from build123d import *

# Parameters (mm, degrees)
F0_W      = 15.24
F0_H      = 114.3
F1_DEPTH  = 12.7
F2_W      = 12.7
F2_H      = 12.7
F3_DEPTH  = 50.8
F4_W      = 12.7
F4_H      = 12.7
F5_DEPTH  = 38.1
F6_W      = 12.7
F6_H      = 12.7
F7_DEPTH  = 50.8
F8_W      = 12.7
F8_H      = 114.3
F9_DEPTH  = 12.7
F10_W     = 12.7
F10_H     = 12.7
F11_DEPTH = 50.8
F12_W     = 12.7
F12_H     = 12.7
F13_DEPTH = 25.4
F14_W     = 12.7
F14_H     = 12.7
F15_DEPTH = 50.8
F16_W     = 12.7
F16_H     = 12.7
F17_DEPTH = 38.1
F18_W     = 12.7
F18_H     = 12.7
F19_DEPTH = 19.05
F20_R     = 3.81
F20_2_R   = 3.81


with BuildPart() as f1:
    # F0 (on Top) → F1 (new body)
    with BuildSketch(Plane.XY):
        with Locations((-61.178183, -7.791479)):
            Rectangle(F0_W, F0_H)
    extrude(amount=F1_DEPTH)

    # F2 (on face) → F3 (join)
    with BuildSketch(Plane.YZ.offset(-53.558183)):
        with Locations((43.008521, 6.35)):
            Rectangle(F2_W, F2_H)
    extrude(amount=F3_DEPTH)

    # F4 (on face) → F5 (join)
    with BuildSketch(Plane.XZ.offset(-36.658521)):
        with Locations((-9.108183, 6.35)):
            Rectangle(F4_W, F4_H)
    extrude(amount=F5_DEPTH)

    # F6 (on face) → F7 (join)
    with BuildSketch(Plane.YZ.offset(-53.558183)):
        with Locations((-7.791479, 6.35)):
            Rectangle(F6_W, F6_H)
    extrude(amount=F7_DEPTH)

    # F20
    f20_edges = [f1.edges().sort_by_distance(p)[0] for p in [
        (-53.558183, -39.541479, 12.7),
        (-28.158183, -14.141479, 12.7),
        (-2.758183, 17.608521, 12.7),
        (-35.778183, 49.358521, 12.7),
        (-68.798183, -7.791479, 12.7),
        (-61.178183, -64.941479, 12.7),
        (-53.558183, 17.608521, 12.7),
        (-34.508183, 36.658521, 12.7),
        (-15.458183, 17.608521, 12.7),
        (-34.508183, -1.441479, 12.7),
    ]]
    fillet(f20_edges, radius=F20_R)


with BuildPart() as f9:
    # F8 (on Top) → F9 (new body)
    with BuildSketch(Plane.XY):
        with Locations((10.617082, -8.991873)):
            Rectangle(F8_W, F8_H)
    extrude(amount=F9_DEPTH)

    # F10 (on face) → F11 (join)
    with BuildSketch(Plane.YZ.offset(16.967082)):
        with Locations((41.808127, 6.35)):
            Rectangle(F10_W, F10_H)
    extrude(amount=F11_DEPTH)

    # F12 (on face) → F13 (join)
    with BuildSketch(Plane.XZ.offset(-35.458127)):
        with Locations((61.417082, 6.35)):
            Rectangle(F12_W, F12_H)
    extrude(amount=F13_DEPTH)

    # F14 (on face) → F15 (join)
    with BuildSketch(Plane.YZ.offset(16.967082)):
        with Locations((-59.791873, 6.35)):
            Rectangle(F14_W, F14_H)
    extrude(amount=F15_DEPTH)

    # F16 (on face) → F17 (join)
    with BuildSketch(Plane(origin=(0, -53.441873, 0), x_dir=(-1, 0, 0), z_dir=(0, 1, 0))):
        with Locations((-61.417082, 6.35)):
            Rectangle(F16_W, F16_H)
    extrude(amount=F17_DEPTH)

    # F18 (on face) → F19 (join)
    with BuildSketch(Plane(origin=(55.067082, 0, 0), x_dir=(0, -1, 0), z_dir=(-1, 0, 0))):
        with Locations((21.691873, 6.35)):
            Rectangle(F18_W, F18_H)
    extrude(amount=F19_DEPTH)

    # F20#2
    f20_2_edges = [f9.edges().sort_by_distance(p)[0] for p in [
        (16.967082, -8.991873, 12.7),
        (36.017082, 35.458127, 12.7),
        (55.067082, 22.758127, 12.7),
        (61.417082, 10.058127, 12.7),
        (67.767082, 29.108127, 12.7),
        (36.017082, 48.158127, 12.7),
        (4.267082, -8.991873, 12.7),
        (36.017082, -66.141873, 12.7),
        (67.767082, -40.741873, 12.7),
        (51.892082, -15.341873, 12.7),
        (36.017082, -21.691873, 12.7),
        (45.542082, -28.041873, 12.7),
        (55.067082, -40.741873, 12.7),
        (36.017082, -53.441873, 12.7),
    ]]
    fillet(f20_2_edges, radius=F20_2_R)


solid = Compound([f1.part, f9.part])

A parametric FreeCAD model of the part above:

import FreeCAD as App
import Part
import Sketcher
Q = App.Units.Quantity


def edges_at(feature, points):
    """Names of the edges that pass closest to the given points."""
    edges = feature.Shape.Edges
    near = lambda p: min(range(len(edges)), key=lambda i: edges[i].distToShape(Part.Vertex(*p))[0])
    return sorted({f"Edge{near(p) + 1}" for p in points})

doc = App.newDocument("Part")
body = doc.addObject("PartDesign::Body", "Body")

sketch1 = body.newObject("Sketcher::SketchObject", "Sketch")
sketch1.AttachmentSupport = (doc.getObject("XY_Plane"), [""])
sketch1.MapMode = "FlatFace"
sketch1.addGeometry(Part.LineSegment(App.Vector(-68.798183, 49.358521, 0), App.Vector(-68.798183, -64.941479, 0)), False)
sketch1.addGeometry(Part.LineSegment(App.Vector(-68.798183, -64.941479, 0), App.Vector(-53.558183, -64.941479, 0)), False)
sketch1.addGeometry(Part.LineSegment(App.Vector(-53.558183, -64.941479, 0), App.Vector(-53.558183, 49.358521, 0)), False)
sketch1.addGeometry(Part.LineSegment(App.Vector(-53.558183, 49.358521, 0), App.Vector(-68.798183, 49.358521, 0)), False)
sketch1.addConstraint(Sketcher.Constraint("Coincident", 0, 2, 1, 1))
sketch1.addConstraint(Sketcher.Constraint("Coincident", 1, 2, 2, 1))
sketch1.addConstraint(Sketcher.Constraint("Coincident", 2, 2, 3, 1))
sketch1.addConstraint(Sketcher.Constraint("Coincident", 3, 2, 0, 1))
sketch1.addConstraint(Sketcher.Constraint("Vertical", 0))
sketch1.addConstraint(Sketcher.Constraint("Horizontal", 1))
sketch1.addConstraint(Sketcher.Constraint("Vertical", 2))
sketch1.addConstraint(Sketcher.Constraint("Horizontal", 3))
sketch1.addConstraint(Sketcher.Constraint("DistanceX", 1, 1, 1, 2, Q("0.6 in")))
sketch1.addConstraint(Sketcher.Constraint("DistanceY", 0, 2, 0, 1, Q("4.5 in")))
sketch1.addConstraint(Sketcher.Constraint("DistanceY", 0, 2, -1, 1, 64.941479))
sketch1.addConstraint(Sketcher.Constraint("DistanceX", 0, 2, -1, 1, 68.798183))
pad1 = body.newObject("PartDesign::Pad", "Pad")
pad1.Profile = sketch1
pad1.Length = Q("0.5 in")

sketch2 = body.newObject("Sketcher::SketchObject", "Sketch001")
sketch2.AttachmentSupport = (doc.getObject("YZ_Plane"), [""])
sketch2.MapMode = "FlatFace"
sketch2.AttachmentOffset = App.Placement(App.Vector(0, 0, -53.558183), App.Rotation())
sketch2.addGeometry(Part.LineSegment(App.Vector(36.658521, 12.7, 0), App.Vector(36.658521, 0, 0)), False)
sketch2.addGeometry(Part.LineSegment(App.Vector(36.658521, 0, 0), App.Vector(49.358521, 0, 0)), False)
sketch2.addGeometry(Part.LineSegment(App.Vector(49.358521, 0, 0), App.Vector(49.358521, 12.7, 0)), False)
sketch2.addGeometry(Part.LineSegment(App.Vector(49.358521, 12.7, 0), App.Vector(36.658521, 12.7, 0)), False)
sketch2.addConstraint(Sketcher.Constraint("Coincident", 0, 2, 1, 1))
sketch2.addConstraint(Sketcher.Constraint("Coincident", 1, 2, 2, 1))
sketch2.addConstraint(Sketcher.Constraint("Coincident", 2, 2, 3, 1))
sketch2.addConstraint(Sketcher.Constraint("Coincident", 3, 2, 0, 1))
sketch2.addConstraint(Sketcher.Constraint("Vertical", 0))
sketch2.addConstraint(Sketcher.Constraint("Horizontal", 1))
sketch2.addConstraint(Sketcher.Constraint("Vertical", 2))
sketch2.addConstraint(Sketcher.Constraint("Horizontal", 3))
sketch2.addConstraint(Sketcher.Constraint("PointOnObject", 0, 2, -1))
sketch2.addConstraint(Sketcher.Constraint("Equal", 3, 0))
sketch2.addConstraint(Sketcher.Constraint("DistanceX", 1, 1, 1, 2, Q("0.5 in")))
sketch2.addConstraint(Sketcher.Constraint("DistanceX", -1, 1, 0, 2, 36.658521))
pad2 = body.newObject("PartDesign::Pad", "Pad001")
pad2.Profile = sketch2
pad2.Length = Q("2 in")

sketch3 = body.newObject("Sketcher::SketchObject", "Sketch002")
sketch3.AttachmentSupport = (doc.getObject("XZ_Plane"), [""])
sketch3.MapMode = "FlatFace"
sketch3.AttachmentOffset = App.Placement(App.Vector(0, 0, -36.658521), App.Rotation())
sketch3.addGeometry(Part.LineSegment(App.Vector(-15.458183, 12.7, 0), App.Vector(-15.458183, 0, 0)), False)
sketch3.addGeometry(Part.LineSegment(App.Vector(-15.458183, 0, 0), App.Vector(-2.758183, 0, 0)), False)
sketch3.addGeometry(Part.LineSegment(App.Vector(-2.758183, 0, 0), App.Vector(-2.758183, 12.7, 0)), False)
sketch3.addGeometry(Part.LineSegment(App.Vector(-2.758183, 12.7, 0), App.Vector(-15.458183, 12.7, 0)), False)
sketch3.addConstraint(Sketcher.Constraint("Coincident", 0, 2, 1, 1))
sketch3.addConstraint(Sketcher.Constraint("Coincident", 1, 2, 2, 1))
sketch3.addConstraint(Sketcher.Constraint("Coincident", 2, 2, 3, 1))
sketch3.addConstraint(Sketcher.Constraint("Coincident", 3, 2, 0, 1))
sketch3.addConstraint(Sketcher.Constraint("Vertical", 0))
sketch3.addConstraint(Sketcher.Constraint("Horizontal", 1))
sketch3.addConstraint(Sketcher.Constraint("Vertical", 2))
sketch3.addConstraint(Sketcher.Constraint("Horizontal", 3))
sketch3.addConstraint(Sketcher.Constraint("PointOnObject", 0, 2, -1))
sketch3.addConstraint(Sketcher.Constraint("Equal", 3, 0))
sketch3.addConstraint(Sketcher.Constraint("DistanceX", 1, 1, 1, 2, Q("0.5 in")))
sketch3.addConstraint(Sketcher.Constraint("DistanceX", 0, 2, -1, 1, 15.458183))
pad3 = body.newObject("PartDesign::Pad", "Pad002")
pad3.Profile = sketch3
pad3.Length = Q("1.5 in")

sketch4 = body.newObject("Sketcher::SketchObject", "Sketch003")
sketch4.AttachmentSupport = (doc.getObject("YZ_Plane"), [""])
sketch4.MapMode = "FlatFace"
sketch4.AttachmentOffset = App.Placement(App.Vector(0, 0, -53.558183), App.Rotation())
sketch4.addGeometry(Part.LineSegment(App.Vector(-14.141479, 12.7, 0), App.Vector(-14.141479, 0, 0)), False)
sketch4.addGeometry(Part.LineSegment(App.Vector(-14.141479, 0, 0), App.Vector(-1.441479, 0, 0)), False)
sketch4.addGeometry(Part.LineSegment(App.Vector(-1.441479, 0, 0), App.Vector(-1.441479, 12.7, 0)), False)
sketch4.addGeometry(Part.LineSegment(App.Vector(-1.441479, 12.7, 0), App.Vector(-14.141479, 12.7, 0)), False)
sketch4.addConstraint(Sketcher.Constraint("Coincident", 0, 2, 1, 1))
sketch4.addConstraint(Sketcher.Constraint("Coincident", 1, 2, 2, 1))
sketch4.addConstraint(Sketcher.Constraint("Coincident", 2, 2, 3, 1))
sketch4.addConstraint(Sketcher.Constraint("Coincident", 3, 2, 0, 1))
sketch4.addConstraint(Sketcher.Constraint("Vertical", 0))
sketch4.addConstraint(Sketcher.Constraint("Horizontal", 1))
sketch4.addConstraint(Sketcher.Constraint("Vertical", 2))
sketch4.addConstraint(Sketcher.Constraint("Horizontal", 3))
sketch4.addConstraint(Sketcher.Constraint("PointOnObject", 0, 2, -1))
sketch4.addConstraint(Sketcher.Constraint("Equal", 3, 0))
sketch4.addConstraint(Sketcher.Constraint("DistanceX", 1, 1, 1, 2, Q("0.5 in")))
sketch4.addConstraint(Sketcher.Constraint("DistanceX", 0, 2, -1, 1, 14.141479))
pad4 = body.newObject("PartDesign::Pad", "Pad003")
pad4.Profile = sketch4
pad4.Length = Q("2 in")
doc.recompute()

fillet = body.newObject("PartDesign::Fillet", "Fillet")
fillet.Base = (pad4, edges_at(pad4, [
    (-53.558, -39.541, 12.7),
    (-28.158, -14.141, 12.7),
    (-2.758, 17.609, 12.7),
    (-35.778, 49.359, 12.7),
    (-68.798, -7.791, 12.7),
    (-61.178, -64.941, 12.7),
    (-53.558, 17.609, 12.7),
    (-34.508, 36.659, 12.7),
    (-15.458, 17.609, 12.7),
    (-34.508, -1.441, 12.7),
]))
fillet.Radius = Q("0.15 in")
body2 = doc.addObject("PartDesign::Body", "Body001")

sketch5 = body2.newObject("Sketcher::SketchObject", "Sketch004")
sketch5.AttachmentSupport = (doc.getObject("XY_Plane001"), [""])
sketch5.MapMode = "FlatFace"
sketch5.addGeometry(Part.LineSegment(App.Vector(4.267082, 48.158127, 0), App.Vector(4.267082, -66.141873, 0)), False)
sketch5.addGeometry(Part.LineSegment(App.Vector(4.267082, -66.141873, 0), App.Vector(16.967082, -66.141873, 0)), False)
sketch5.addGeometry(Part.LineSegment(App.Vector(16.967082, -66.141873, 0), App.Vector(16.967082, 48.158127, 0)), False)
sketch5.addGeometry(Part.LineSegment(App.Vector(16.967082, 48.158127, 0), App.Vector(4.267082, 48.158127, 0)), False)
sketch5.addConstraint(Sketcher.Constraint("Coincident", 0, 2, 1, 1))
sketch5.addConstraint(Sketcher.Constraint("Coincident", 1, 2, 2, 1))
sketch5.addConstraint(Sketcher.Constraint("Coincident", 2, 2, 3, 1))
sketch5.addConstraint(Sketcher.Constraint("Coincident", 3, 2, 0, 1))
sketch5.addConstraint(Sketcher.Constraint("Vertical", 0))
sketch5.addConstraint(Sketcher.Constraint("Horizontal", 1))
sketch5.addConstraint(Sketcher.Constraint("Vertical", 2))
sketch5.addConstraint(Sketcher.Constraint("Horizontal", 3))
sketch5.addConstraint(Sketcher.Constraint("DistanceX", 1, 1, 1, 2, Q("0.5 in")))
sketch5.addConstraint(Sketcher.Constraint("DistanceY", 0, 2, 0, 1, Q("4.5 in")))
sketch5.addConstraint(Sketcher.Constraint("DistanceX", -1, 1, 0, 2, 4.267082))
sketch5.addConstraint(Sketcher.Constraint("DistanceY", 0, 2, -1, 1, 66.141873))
pad5 = body2.newObject("PartDesign::Pad", "Pad004")
pad5.Profile = sketch5
pad5.Length = Q("0.5 in")

sketch6 = body2.newObject("Sketcher::SketchObject", "Sketch005")
sketch6.AttachmentSupport = (doc.getObject("YZ_Plane001"), [""])
sketch6.MapMode = "FlatFace"
sketch6.AttachmentOffset = App.Placement(App.Vector(0, 0, 16.967082), App.Rotation())
sketch6.addGeometry(Part.LineSegment(App.Vector(35.458127, 12.7, 0), App.Vector(35.458127, 0, 0)), False)
sketch6.addGeometry(Part.LineSegment(App.Vector(35.458127, 0, 0), App.Vector(48.158127, 0, 0)), False)
sketch6.addGeometry(Part.LineSegment(App.Vector(48.158127, 0, 0), App.Vector(48.158127, 12.7, 0)), False)
sketch6.addGeometry(Part.LineSegment(App.Vector(48.158127, 12.7, 0), App.Vector(35.458127, 12.7, 0)), False)
sketch6.addConstraint(Sketcher.Constraint("Coincident", 0, 2, 1, 1))
sketch6.addConstraint(Sketcher.Constraint("Coincident", 1, 2, 2, 1))
sketch6.addConstraint(Sketcher.Constraint("Coincident", 2, 2, 3, 1))
sketch6.addConstraint(Sketcher.Constraint("Coincident", 3, 2, 0, 1))
sketch6.addConstraint(Sketcher.Constraint("Vertical", 0))
sketch6.addConstraint(Sketcher.Constraint("Horizontal", 1))
sketch6.addConstraint(Sketcher.Constraint("Vertical", 2))
sketch6.addConstraint(Sketcher.Constraint("Horizontal", 3))
sketch6.addConstraint(Sketcher.Constraint("PointOnObject", 0, 2, -1))
sketch6.addConstraint(Sketcher.Constraint("Equal", 3, 0))
sketch6.addConstraint(Sketcher.Constraint("DistanceX", 1, 1, 1, 2, Q("0.5 in")))
sketch6.addConstraint(Sketcher.Constraint("DistanceX", -1, 1, 0, 2, 35.458127))
pad6 = body2.newObject("PartDesign::Pad", "Pad005")
pad6.Profile = sketch6
pad6.Length = Q("2 in")

sketch7 = body2.newObject("Sketcher::SketchObject", "Sketch006")
sketch7.AttachmentSupport = (doc.getObject("XZ_Plane001"), [""])
sketch7.MapMode = "FlatFace"
sketch7.AttachmentOffset = App.Placement(App.Vector(0, 0, -35.458127), App.Rotation())
sketch7.addGeometry(Part.LineSegment(App.Vector(55.067082, 12.7, 0), App.Vector(55.067082, 0, 0)), False)
sketch7.addGeometry(Part.LineSegment(App.Vector(55.067082, 0, 0), App.Vector(67.767082, 0, 0)), False)
sketch7.addGeometry(Part.LineSegment(App.Vector(67.767082, 0, 0), App.Vector(67.767082, 12.7, 0)), False)
sketch7.addGeometry(Part.LineSegment(App.Vector(67.767082, 12.7, 0), App.Vector(55.067082, 12.7, 0)), False)
sketch7.addConstraint(Sketcher.Constraint("Coincident", 0, 2, 1, 1))
sketch7.addConstraint(Sketcher.Constraint("Coincident", 1, 2, 2, 1))
sketch7.addConstraint(Sketcher.Constraint("Coincident", 2, 2, 3, 1))
sketch7.addConstraint(Sketcher.Constraint("Coincident", 3, 2, 0, 1))
sketch7.addConstraint(Sketcher.Constraint("Vertical", 0))
sketch7.addConstraint(Sketcher.Constraint("Horizontal", 1))
sketch7.addConstraint(Sketcher.Constraint("Vertical", 2))
sketch7.addConstraint(Sketcher.Constraint("Horizontal", 3))
sketch7.addConstraint(Sketcher.Constraint("PointOnObject", 0, 2, -1))
sketch7.addConstraint(Sketcher.Constraint("Equal", 3, 0))
sketch7.addConstraint(Sketcher.Constraint("DistanceX", 1, 1, 1, 2, Q("0.5 in")))
sketch7.addConstraint(Sketcher.Constraint("DistanceX", -1, 1, 1, 2, 67.767082))
pad7 = body2.newObject("PartDesign::Pad", "Pad006")
pad7.Profile = sketch7
pad7.Length = Q("1 in")

sketch8 = body2.newObject("Sketcher::SketchObject", "Sketch007")
sketch8.AttachmentSupport = (doc.getObject("YZ_Plane001"), [""])
sketch8.MapMode = "FlatFace"
sketch8.AttachmentOffset = App.Placement(App.Vector(0, 0, 16.967082), App.Rotation())
sketch8.addGeometry(Part.LineSegment(App.Vector(-66.141873, 12.7, 0), App.Vector(-66.141873, 0, 0)), False)
sketch8.addGeometry(Part.LineSegment(App.Vector(-66.141873, 0, 0), App.Vector(-53.441873, 0, 0)), False)
sketch8.addGeometry(Part.LineSegment(App.Vector(-53.441873, 0, 0), App.Vector(-53.441873, 12.7, 0)), False)
sketch8.addGeometry(Part.LineSegment(App.Vector(-53.441873, 12.7, 0), App.Vector(-66.141873, 12.7, 0)), False)
sketch8.addConstraint(Sketcher.Constraint("Coincident", 0, 2, 1, 1))
sketch8.addConstraint(Sketcher.Constraint("Coincident", 1, 2, 2, 1))
sketch8.addConstraint(Sketcher.Constraint("Coincident", 2, 2, 3, 1))
sketch8.addConstraint(Sketcher.Constraint("Coincident", 3, 2, 0, 1))
sketch8.addConstraint(Sketcher.Constraint("Vertical", 0))
sketch8.addConstraint(Sketcher.Constraint("Horizontal", 1))
sketch8.addConstraint(Sketcher.Constraint("Vertical", 2))
sketch8.addConstraint(Sketcher.Constraint("Horizontal", 3))
sketch8.addConstraint(Sketcher.Constraint("PointOnObject", 0, 2, -1))
sketch8.addConstraint(Sketcher.Constraint("Equal", 3, 0))
sketch8.addConstraint(Sketcher.Constraint("DistanceX", 1, 1, 1, 2, Q("0.5 in")))
sketch8.addConstraint(Sketcher.Constraint("DistanceX", 0, 2, -1, 1, 66.141873))
pad8 = body2.newObject("PartDesign::Pad", "Pad007")
pad8.Profile = sketch8
pad8.Length = Q("2 in")

sketch9 = body2.newObject("Sketcher::SketchObject", "Sketch008")
sketch9.AttachmentSupport = (doc.getObject("XZ_Plane001"), [""])
sketch9.MapMode = "FlatFace"
sketch9.AttachmentOffset = App.Placement(App.Vector(0, 0, 53.441873), App.Rotation())
sketch9.addGeometry(Part.LineSegment(App.Vector(67.767082, 12.7, 0), App.Vector(67.767082, 0, 0)), False)
sketch9.addGeometry(Part.LineSegment(App.Vector(67.767082, 0, 0), App.Vector(55.067082, 0, 0)), False)
sketch9.addGeometry(Part.LineSegment(App.Vector(55.067082, 0, 0), App.Vector(55.067082, 12.7, 0)), False)
sketch9.addGeometry(Part.LineSegment(App.Vector(55.067082, 12.7, 0), App.Vector(67.767082, 12.7, 0)), False)
sketch9.addConstraint(Sketcher.Constraint("Coincident", 0, 2, 1, 1))
sketch9.addConstraint(Sketcher.Constraint("Coincident", 1, 2, 2, 1))
sketch9.addConstraint(Sketcher.Constraint("Coincident", 2, 2, 3, 1))
sketch9.addConstraint(Sketcher.Constraint("Coincident", 3, 2, 0, 1))
sketch9.addConstraint(Sketcher.Constraint("Vertical", 0))
sketch9.addConstraint(Sketcher.Constraint("Horizontal", 1))
sketch9.addConstraint(Sketcher.Constraint("Vertical", 2))
sketch9.addConstraint(Sketcher.Constraint("Horizontal", 3))
sketch9.addConstraint(Sketcher.Constraint("PointOnObject", 0, 2, -1))
sketch9.addConstraint(Sketcher.Constraint("Equal", 3, 0))
sketch9.addConstraint(Sketcher.Constraint("DistanceX", 1, 2, 1, 1, Q("0.5 in")))
sketch9.addConstraint(Sketcher.Constraint("DistanceX", -1, 1, 0, 2, 67.767082))
pad9 = body2.newObject("PartDesign::Pad", "Pad008")
pad9.Profile = sketch9
pad9.Length = Q("1.5 in")
pad9.Reversed = True

sketch10 = body2.newObject("Sketcher::SketchObject", "Sketch009")
sketch10.AttachmentSupport = (doc.getObject("YZ_Plane001"), [""])
sketch10.MapMode = "FlatFace"
sketch10.AttachmentOffset = App.Placement(App.Vector(0, 0, 55.067082), App.Rotation())
sketch10.addGeometry(Part.LineSegment(App.Vector(-15.341873, 12.7, 0), App.Vector(-15.341873, 0, 0)), False)
sketch10.addGeometry(Part.LineSegment(App.Vector(-15.341873, 0, 0), App.Vector(-28.041873, 0, 0)), False)
sketch10.addGeometry(Part.LineSegment(App.Vector(-28.041873, 0, 0), App.Vector(-28.041873, 12.7, 0)), False)
sketch10.addGeometry(Part.LineSegment(App.Vector(-28.041873, 12.7, 0), App.Vector(-15.341873, 12.7, 0)), False)
sketch10.addConstraint(Sketcher.Constraint("Coincident", 0, 2, 1, 1))
sketch10.addConstraint(Sketcher.Constraint("Coincident", 1, 2, 2, 1))
sketch10.addConstraint(Sketcher.Constraint("Coincident", 2, 2, 3, 1))
sketch10.addConstraint(Sketcher.Constraint("Coincident", 3, 2, 0, 1))
sketch10.addConstraint(Sketcher.Constraint("Vertical", 0))
sketch10.addConstraint(Sketcher.Constraint("Horizontal", 1))
sketch10.addConstraint(Sketcher.Constraint("Vertical", 2))
sketch10.addConstraint(Sketcher.Constraint("Horizontal", 3))
sketch10.addConstraint(Sketcher.Constraint("PointOnObject", 0, 2, -1))
sketch10.addConstraint(Sketcher.Constraint("Equal", 3, 0))
sketch10.addConstraint(Sketcher.Constraint("DistanceX", 1, 2, 1, 1, Q("0.5 in")))
sketch10.addConstraint(Sketcher.Constraint("DistanceX", 0, 2, -1, 1, 15.341873))
pad10 = body2.newObject("PartDesign::Pad", "Pad009")
pad10.Profile = sketch10
pad10.Length = Q("0.75 in")
pad10.Reversed = True
doc.recompute()

fillet2 = body2.newObject("PartDesign::Fillet", "Fillet001")
fillet2.Base = (pad10, edges_at(pad10, [
    (16.967, -8.992, 12.7),
    (36.017, 35.458, 12.7),
    (55.067, 22.758, 12.7),
    (61.417, 10.058, 12.7),
    (67.767, 29.108, 12.7),
    (36.017, 48.158, 12.7),
    (4.267, -8.992, 12.7),
    (36.017, -66.142, 12.7),
    (67.767, -40.742, 12.7),
    (51.892, -15.342, 12.7),
    (36.017, -21.692, 12.7),
    (45.542, -28.042, 12.7),
    (55.067, -40.742, 12.7),
    (36.017, -53.442, 12.7),
]))
fillet2.Radius = Q("0.15 in")

doc.recompute()
